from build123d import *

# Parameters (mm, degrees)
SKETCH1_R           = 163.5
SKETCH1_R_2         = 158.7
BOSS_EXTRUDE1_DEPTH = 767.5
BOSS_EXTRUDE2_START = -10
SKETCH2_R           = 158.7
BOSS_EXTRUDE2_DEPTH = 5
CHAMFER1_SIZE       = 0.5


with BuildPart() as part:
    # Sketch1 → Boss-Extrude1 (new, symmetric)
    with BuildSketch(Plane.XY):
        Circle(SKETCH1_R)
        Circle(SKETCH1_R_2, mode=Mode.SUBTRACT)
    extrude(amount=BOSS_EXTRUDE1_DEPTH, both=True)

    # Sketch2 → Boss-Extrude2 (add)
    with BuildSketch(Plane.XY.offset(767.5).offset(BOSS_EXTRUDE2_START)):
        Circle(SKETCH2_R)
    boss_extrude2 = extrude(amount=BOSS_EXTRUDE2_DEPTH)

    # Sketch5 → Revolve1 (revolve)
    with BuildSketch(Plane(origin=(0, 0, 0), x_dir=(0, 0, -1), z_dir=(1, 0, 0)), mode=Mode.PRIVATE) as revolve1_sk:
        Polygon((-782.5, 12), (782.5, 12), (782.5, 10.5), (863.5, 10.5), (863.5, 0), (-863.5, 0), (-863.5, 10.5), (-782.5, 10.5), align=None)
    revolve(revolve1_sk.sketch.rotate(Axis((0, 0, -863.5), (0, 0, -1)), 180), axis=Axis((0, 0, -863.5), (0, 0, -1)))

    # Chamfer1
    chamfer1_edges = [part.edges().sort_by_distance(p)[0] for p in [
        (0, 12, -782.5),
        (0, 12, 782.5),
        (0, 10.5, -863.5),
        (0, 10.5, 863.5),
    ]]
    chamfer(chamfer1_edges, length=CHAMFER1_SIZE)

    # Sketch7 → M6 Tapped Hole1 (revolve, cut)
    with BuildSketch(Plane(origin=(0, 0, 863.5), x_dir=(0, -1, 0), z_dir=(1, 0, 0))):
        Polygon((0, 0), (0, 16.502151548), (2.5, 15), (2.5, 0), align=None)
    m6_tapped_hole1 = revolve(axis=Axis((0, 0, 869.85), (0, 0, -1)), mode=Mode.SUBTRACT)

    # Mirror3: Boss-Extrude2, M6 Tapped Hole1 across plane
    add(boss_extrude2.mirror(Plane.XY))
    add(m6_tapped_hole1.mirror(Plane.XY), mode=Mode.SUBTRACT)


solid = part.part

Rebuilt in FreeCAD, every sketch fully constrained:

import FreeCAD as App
import Part
import Sketcher
from FreeCAD import Vector
Q = App.Units.Quantity


def edges_at(feature, points):
    """Names of the edges that pass closest to the given points."""
    edges = feature.Shape.Edges
    near = lambda p: min(range(len(edges)), key=lambda i: edges[i].distToShape(Part.Vertex(*p))[0])
    return sorted({f"Edge{near(p) + 1}" for p in points})


def add_polygon(sketch, points):
    """Adds a closed chain of lines whose ends are joined by coincident constraints."""
    first, n = sketch.GeometryCount, len(points)
    for a, b in zip(points, points[1:] + points[:1]):
        sketch.addGeometry(Part.LineSegment(App.Vector(*a, 0), App.Vector(*b, 0)), False)
    for i in range(n):
        sketch.addConstraint(Sketcher.Constraint("Coincident", first + i, 2, first + (i + 1) % n, 1))

doc = App.newDocument("Part")
body = doc.addObject("PartDesign::Body", "Body")

sketch1 = body.newObject("Sketcher::SketchObject", "Sketch")
sketch1.AttachmentSupport = (doc.getObject("XY_Plane"), [""])
sketch1.MapMode = "FlatFace"
sketch1.addGeometry([
    Part.Circle(Vector(0, 0, 0), Vector(0, 0, 1), 164),
    Part.Circle(Vector(0, 0, 0), Vector(0, 0, 1), 159),
], False)
sketch1.addConstraint([
    Sketcher.Constraint("Coincident", 0, 3, -1, 1),
    Sketcher.Constraint("Coincident", 1, 3, -1, 1),
    Sketcher.Constraint("Diameter", 0, 327.0),
    Sketcher.Constraint("Diameter", 1, 317.4),
])
pad1 = body.newObject("PartDesign::Pad", "Pad")
pad1.Profile = sketch1
pad1.Length = 1535
pad1.Midplane = True

sketch2 = body.newObject("Sketcher::SketchObject", "Sketch001")
sketch2.AttachmentSupport = (doc.getObject("XY_Plane"), [""])
sketch2.MapMode = "FlatFace"
sketch2.AttachmentOffset = App.Placement(Vector(0, 0, 757.5), App.Rotation())
sketch2.addGeometry(Part.Circle(Vector(0, 0, 0), Vector(0, 0, 1), 159), False)
sketch2.addConstraint([
    Sketcher.Constraint("Coincident", 0, 3, -1, 1),
    Sketcher.Constraint("Diameter", 0, 317.4),
])
pad2 = body.newObject("PartDesign::Pad", "Pad001")
pad2.Profile = sketch2
pad2.Length = 5

sketch3 = body.newObject("Sketcher::SketchObject", "Sketch002")
sketch3.AttachmentSupport = (doc.getObject("YZ_Plane"), [""])
sketch3.MapMode = "FlatFace"
add_polygon(sketch3, [(12, -782.5), (12, 782.5), (10.5, 782.5), (10.5, 863.5), (0, 863.5), (0, -863.5), (10.5, -863.5), (10.5, -782.5)])
sketch3.addConstraint([
    Sketcher.Constraint("Vertical", 0),
    Sketcher.Constraint("Horizontal", 1),
    Sketcher.Constraint("Vertical", 2),
    Sketcher.Constraint("Horizontal", 3),
    Sketcher.Constraint("Vertical", 4),
    Sketcher.Constraint("Horizontal", 5),
    Sketcher.Constraint("Vertical", 6),
    Sketcher.Constraint("Horizontal", 7),
    Sketcher.Constraint("Symmetric", 3, 2, 4, 2, -1, 1),
    Sketcher.Constraint("Symmetric", 1, 2, 6, 2, -1),
    Sketcher.Constraint("DistanceY", 0, 1, 0, 2, 1565.0),
    Sketcher.Constraint("DistanceY", 2, 1, 2, 2, 81.0),
    Sketcher.Constraint("DistanceX", 1, 2, 1, 1, 1.5),
    Sketcher.Constraint("DistanceX", 3, 2, 3, 1, 10.5),
])
revolution = body.newObject("PartDesign::Revolution", "Revolution")
revolution.Profile = sketch3
revolution.ReferenceAxis = (sketch3, ["V_Axis"])
revolution.Angle = 360
doc.recompute()

chamfer = body.newObject("PartDesign::Chamfer", "Chamfer")
chamfer.Base = (revolution, edges_at(revolution, [
    (0, 12, -782.5),
    (0, 12, 782.5),
    (0, 10.5, -863.5),
    (0, 10.5, 863.5),
]))
chamfer.Size = 0.5

sketch4 = body.newObject("Sketcher::SketchObject", "Sketch003")
sketch4.AttachmentSupport = (doc.getObject("YZ_Plane"), [""])
sketch4.MapMode = "FlatFace"
add_polygon(sketch4, [(0, 847), (0, 863.5), (-2.5, 863.5), (-2.5, 848.5)])
sketch4.addConstraint([
    Sketcher.Constraint("Vertical", 0),
    Sketcher.Constraint("Horizontal", 1),
    Sketcher.Constraint("Vertical", 2),
    Sketcher.Constraint("PointOnObject", 0, 2, -2),
    Sketcher.Constraint("DistanceY", 2, 2, 2, 1, 15.0),
    Sketcher.Constraint("Angle", 3, Q("-31 deg")),
    Sketcher.Constraint("DistanceX", 1, 2, 1, 1, 2.5),
    Sketcher.Constraint("DistanceY", -1, 1, 0, 2, 863.5),
])
groove = body.newObject("PartDesign::Groove", "Groove")
groove.Profile = sketch4
groove.ReferenceAxis = (sketch4, ["V_Axis"])
groove.Angle = 360
doc.recompute()

mirrored = body.newObject("PartDesign::Mirrored", "Mirrored")
mirrored.Originals = [pad2, groove]
mirrored.MirrorPlane = (doc.getObject("XY_Plane"), [""])
body.Tip = mirrored

doc.recompute()
